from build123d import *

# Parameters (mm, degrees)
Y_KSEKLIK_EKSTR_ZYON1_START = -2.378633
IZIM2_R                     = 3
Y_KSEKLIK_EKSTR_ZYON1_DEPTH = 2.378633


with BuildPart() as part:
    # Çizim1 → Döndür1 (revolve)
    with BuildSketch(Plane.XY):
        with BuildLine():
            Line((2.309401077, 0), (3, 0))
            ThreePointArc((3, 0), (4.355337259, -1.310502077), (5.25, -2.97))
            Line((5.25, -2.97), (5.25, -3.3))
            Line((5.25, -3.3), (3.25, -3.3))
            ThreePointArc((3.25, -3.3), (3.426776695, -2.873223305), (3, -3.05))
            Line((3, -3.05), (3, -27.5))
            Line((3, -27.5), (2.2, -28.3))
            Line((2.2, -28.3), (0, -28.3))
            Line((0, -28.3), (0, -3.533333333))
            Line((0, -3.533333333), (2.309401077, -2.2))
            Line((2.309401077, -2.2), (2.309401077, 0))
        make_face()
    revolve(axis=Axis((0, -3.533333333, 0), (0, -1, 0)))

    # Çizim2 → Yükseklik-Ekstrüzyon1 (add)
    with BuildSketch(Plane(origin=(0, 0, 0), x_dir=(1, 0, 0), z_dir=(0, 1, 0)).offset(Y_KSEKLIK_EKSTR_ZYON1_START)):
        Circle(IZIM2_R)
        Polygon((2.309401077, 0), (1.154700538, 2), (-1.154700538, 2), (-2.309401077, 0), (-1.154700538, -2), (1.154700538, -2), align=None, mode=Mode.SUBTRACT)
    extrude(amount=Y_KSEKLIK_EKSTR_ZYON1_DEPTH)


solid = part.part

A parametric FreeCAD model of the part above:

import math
import FreeCAD as App
import Part
import Sketcher

V = App.Vector
Q = App.Units.Quantity

doc = App.newDocument("Part")
body = doc.addObject("PartDesign::Body", "Body")

# Sketch on XY plane
sketch1 = body.newObject("Sketcher::SketchObject", "Sketch")
sketch1.AttachmentSupport = (doc.getObject("XY_Plane"), [""])
sketch1.MapMode = "FlatFace"
sketch1.addGeometry([
    Part.LineSegment(V(3, 0, 0), V(2.31, 0, 0)),  # 0
    Part.LineSegment(V(2.31, 0, 0), V(2.31, -2.2, 0)),  # 1
    Part.LineSegment(V(2.31, -2.2, 0), V(0, -3.53, 0)),  # 2
    Part.LineSegment(V(0, -3.53, 0), V(0, -28.3, 0)),  # 3
    Part.LineSegment(V(0, -28.3, 0), V(2.2, -28.3, 0)),  # 4
    Part.LineSegment(V(2.2, -28.3, 0), V(3, -27.5, 0)),  # 5
    Part.LineSegment(V(3, -27.5, 0), V(3, -3.05, 0)),  # 6
    Part.ArcOfCircle(Part.Circle(V(3.25, -3.05, 0), V(0, 0, 1), 0.25), math.radians(-90), math.radians(180)),  # 7
    Part.LineSegment(V(3.25, -3.3, 0), V(5.25, -3.3, 0)),  # 8
    Part.LineSegment(V(5.25, -3.3, 0), V(5.25, -2.97, 0)),  # 9
    Part.ArcOfCircle(Part.Circle(V(-0.55, -5.02, 0), V(0, 0, 1), 6.15), math.radians(20), math.radians(55)),  # 10
], False)
sketch1.addConstraint([
    Sketcher.Constraint("Coincident", 0, 2, 1, 1),
    Sketcher.Constraint("Coincident", 1, 2, 2, 1),
    Sketcher.Constraint("Coincident", 2, 2, 3, 1),
    Sketcher.Constraint("Coincident", 3, 2, 4, 1),
    Sketcher.Constraint("Coincident", 4, 2, 5, 1),
    Sketcher.Constraint("Coincident", 5, 2, 6, 1),
    Sketcher.Constraint("Tangent", 6, 2, 7, 2),
    Sketcher.Constraint("Tangent", 7, 1, 8, 1),
    Sketcher.Constraint("Coincident", 8, 2, 9, 1),
    Sketcher.Constraint("Coincident", 9, 2, 10, 1),
    Sketcher.Constraint("Coincident", 10, 2, 0, 1),
    Sketcher.Constraint("Horizontal", 0),
    Sketcher.Constraint("Vertical", 1),
    Sketcher.Constraint("Vertical", 3),
    Sketcher.Constraint("Horizontal", 4),
    Sketcher.Constraint("Vertical", 6),
    Sketcher.Constraint("Horizontal", 8),
    Sketcher.Constraint("Vertical", 9),
    Sketcher.Constraint("PointOnObject", 0, 2, -1),
    Sketcher.Constraint("PointOnObject", 2, 2, -2),
    Sketcher.Constraint("Vertical", 6, 2, 10, 2),
    Sketcher.Constraint("Equal", 4, 1),
    Sketcher.Constraint("DistanceX", 8, 1, 8, 2, Q("2 mm")),
    Sketcher.Constraint("Angle", 2, Q("-150 deg")),
    Sketcher.Constraint("Angle", 5, Q("45 deg")),
    Sketcher.Constraint("Radius", 7, Q("0.25 mm")),
    Sketcher.Constraint("Radius", 10, Q("6.15 mm")),
    Sketcher.Constraint("DistanceX", 4, 1, 4, 2, Q("2.2 mm")),
    Sketcher.Constraint("DistanceX", -1, 1, 5, 2, Q("3 mm")),
    Sketcher.Constraint("DistanceY", 6, 1, 6, 2, Q("24.45 mm")),
    Sketcher.Constraint("DistanceY", 9, 1, 9, 2, Q("0.33 mm")),
    Sketcher.Constraint("DistanceY", 3, 2, -1, 1, Q("28.3 mm")),
    Sketcher.Constraint("DistanceX", 0, 2, 0, 1, Q("0.690599 mm")),
])
revolution = body.newObject("PartDesign::Revolution", "Revolution")
revolution.Profile = sketch1
revolution.ReferenceAxis = (sketch1, ["V_Axis"])
revolution.Angle = 360

# Sketch on XZ plane
sketch2 = body.newObject("Sketcher::SketchObject", "Sketch001")
sketch2.AttachmentSupport = (doc.getObject("XZ_Plane"), [""])
sketch2.MapMode = "FlatFace"
sketch2.AttachmentOffset = App.Placement(V(0, 0, 2.378633), App.Rotation())
sketch2.addGeometry([
    Part.Circle(V(0, 0, 0), V(0, 0, 1), 3),  # 0
    Part.LineSegment(V(1.2, -2, 0), V(2.3, 0, 0)),  # 1
    Part.LineSegment(V(2.3, 0, 0), V(1.2, 2, 0)),  # 2
    Part.LineSegment(V(1.2, 2, 0), V(-1.2, 2, 0)),  # 3
    Part.LineSegment(V(-1.2, 2, 0), V(-2.3, 0, 0)),  # 4
    Part.LineSegment(V(-2.3, 0, 0), V(-1.2, -2, 0)),  # 5
    Part.LineSegment(V(-1.2, -2, 0), V(1.2, -2, 0)),  # 6
], False)
sketch2.addConstraint([
    Sketcher.Constraint("Coincident", 1, 2, 2, 1),
    Sketcher.Constraint("Coincident", 2, 2, 3, 1),
    Sketcher.Constraint("Coincident", 3, 2, 4, 1),
    Sketcher.Constraint("Coincident", 4, 2, 5, 1),
    Sketcher.Constraint("Coincident", 5, 2, 6, 1),
    Sketcher.Constraint("Coincident", 6, 2, 1, 1),
    Sketcher.Constraint("Horizontal", 3),
    Sketcher.Constraint("Horizontal", 6),
    Sketcher.Constraint("Coincident", 0, 3, -1, 1),
    Sketcher.Constraint("Symmetric", 1, 2, 4, 2, -1, 1),
    Sketcher.Constraint("Symmetric", 2, 2, 5, 2, -1, 1),
    Sketcher.Constraint("PointOnObject", 1, 2, -1),
    Sketcher.Constraint("Parallel", 1, 4),
    Sketcher.Constraint("Vertical", 3, 2, 5, 2),
    Sketcher.Constraint("Diameter", 0, Q("6 mm")),
    Sketcher.Constraint("Angle", 1, Q("60 deg")),
    Sketcher.Constraint("DistanceY", -1, 1, 2, 2, Q("2 mm")),
    Sketcher.Constraint("DistanceX", 3, 2, 3, 1, Q("2.309401 mm")),
])
pad1 = body.newObject("PartDesign::Pad", "Pad")
pad1.Profile = sketch2
pad1.Length = 2.378633
pad1.Reversed = True

doc.recompute()
